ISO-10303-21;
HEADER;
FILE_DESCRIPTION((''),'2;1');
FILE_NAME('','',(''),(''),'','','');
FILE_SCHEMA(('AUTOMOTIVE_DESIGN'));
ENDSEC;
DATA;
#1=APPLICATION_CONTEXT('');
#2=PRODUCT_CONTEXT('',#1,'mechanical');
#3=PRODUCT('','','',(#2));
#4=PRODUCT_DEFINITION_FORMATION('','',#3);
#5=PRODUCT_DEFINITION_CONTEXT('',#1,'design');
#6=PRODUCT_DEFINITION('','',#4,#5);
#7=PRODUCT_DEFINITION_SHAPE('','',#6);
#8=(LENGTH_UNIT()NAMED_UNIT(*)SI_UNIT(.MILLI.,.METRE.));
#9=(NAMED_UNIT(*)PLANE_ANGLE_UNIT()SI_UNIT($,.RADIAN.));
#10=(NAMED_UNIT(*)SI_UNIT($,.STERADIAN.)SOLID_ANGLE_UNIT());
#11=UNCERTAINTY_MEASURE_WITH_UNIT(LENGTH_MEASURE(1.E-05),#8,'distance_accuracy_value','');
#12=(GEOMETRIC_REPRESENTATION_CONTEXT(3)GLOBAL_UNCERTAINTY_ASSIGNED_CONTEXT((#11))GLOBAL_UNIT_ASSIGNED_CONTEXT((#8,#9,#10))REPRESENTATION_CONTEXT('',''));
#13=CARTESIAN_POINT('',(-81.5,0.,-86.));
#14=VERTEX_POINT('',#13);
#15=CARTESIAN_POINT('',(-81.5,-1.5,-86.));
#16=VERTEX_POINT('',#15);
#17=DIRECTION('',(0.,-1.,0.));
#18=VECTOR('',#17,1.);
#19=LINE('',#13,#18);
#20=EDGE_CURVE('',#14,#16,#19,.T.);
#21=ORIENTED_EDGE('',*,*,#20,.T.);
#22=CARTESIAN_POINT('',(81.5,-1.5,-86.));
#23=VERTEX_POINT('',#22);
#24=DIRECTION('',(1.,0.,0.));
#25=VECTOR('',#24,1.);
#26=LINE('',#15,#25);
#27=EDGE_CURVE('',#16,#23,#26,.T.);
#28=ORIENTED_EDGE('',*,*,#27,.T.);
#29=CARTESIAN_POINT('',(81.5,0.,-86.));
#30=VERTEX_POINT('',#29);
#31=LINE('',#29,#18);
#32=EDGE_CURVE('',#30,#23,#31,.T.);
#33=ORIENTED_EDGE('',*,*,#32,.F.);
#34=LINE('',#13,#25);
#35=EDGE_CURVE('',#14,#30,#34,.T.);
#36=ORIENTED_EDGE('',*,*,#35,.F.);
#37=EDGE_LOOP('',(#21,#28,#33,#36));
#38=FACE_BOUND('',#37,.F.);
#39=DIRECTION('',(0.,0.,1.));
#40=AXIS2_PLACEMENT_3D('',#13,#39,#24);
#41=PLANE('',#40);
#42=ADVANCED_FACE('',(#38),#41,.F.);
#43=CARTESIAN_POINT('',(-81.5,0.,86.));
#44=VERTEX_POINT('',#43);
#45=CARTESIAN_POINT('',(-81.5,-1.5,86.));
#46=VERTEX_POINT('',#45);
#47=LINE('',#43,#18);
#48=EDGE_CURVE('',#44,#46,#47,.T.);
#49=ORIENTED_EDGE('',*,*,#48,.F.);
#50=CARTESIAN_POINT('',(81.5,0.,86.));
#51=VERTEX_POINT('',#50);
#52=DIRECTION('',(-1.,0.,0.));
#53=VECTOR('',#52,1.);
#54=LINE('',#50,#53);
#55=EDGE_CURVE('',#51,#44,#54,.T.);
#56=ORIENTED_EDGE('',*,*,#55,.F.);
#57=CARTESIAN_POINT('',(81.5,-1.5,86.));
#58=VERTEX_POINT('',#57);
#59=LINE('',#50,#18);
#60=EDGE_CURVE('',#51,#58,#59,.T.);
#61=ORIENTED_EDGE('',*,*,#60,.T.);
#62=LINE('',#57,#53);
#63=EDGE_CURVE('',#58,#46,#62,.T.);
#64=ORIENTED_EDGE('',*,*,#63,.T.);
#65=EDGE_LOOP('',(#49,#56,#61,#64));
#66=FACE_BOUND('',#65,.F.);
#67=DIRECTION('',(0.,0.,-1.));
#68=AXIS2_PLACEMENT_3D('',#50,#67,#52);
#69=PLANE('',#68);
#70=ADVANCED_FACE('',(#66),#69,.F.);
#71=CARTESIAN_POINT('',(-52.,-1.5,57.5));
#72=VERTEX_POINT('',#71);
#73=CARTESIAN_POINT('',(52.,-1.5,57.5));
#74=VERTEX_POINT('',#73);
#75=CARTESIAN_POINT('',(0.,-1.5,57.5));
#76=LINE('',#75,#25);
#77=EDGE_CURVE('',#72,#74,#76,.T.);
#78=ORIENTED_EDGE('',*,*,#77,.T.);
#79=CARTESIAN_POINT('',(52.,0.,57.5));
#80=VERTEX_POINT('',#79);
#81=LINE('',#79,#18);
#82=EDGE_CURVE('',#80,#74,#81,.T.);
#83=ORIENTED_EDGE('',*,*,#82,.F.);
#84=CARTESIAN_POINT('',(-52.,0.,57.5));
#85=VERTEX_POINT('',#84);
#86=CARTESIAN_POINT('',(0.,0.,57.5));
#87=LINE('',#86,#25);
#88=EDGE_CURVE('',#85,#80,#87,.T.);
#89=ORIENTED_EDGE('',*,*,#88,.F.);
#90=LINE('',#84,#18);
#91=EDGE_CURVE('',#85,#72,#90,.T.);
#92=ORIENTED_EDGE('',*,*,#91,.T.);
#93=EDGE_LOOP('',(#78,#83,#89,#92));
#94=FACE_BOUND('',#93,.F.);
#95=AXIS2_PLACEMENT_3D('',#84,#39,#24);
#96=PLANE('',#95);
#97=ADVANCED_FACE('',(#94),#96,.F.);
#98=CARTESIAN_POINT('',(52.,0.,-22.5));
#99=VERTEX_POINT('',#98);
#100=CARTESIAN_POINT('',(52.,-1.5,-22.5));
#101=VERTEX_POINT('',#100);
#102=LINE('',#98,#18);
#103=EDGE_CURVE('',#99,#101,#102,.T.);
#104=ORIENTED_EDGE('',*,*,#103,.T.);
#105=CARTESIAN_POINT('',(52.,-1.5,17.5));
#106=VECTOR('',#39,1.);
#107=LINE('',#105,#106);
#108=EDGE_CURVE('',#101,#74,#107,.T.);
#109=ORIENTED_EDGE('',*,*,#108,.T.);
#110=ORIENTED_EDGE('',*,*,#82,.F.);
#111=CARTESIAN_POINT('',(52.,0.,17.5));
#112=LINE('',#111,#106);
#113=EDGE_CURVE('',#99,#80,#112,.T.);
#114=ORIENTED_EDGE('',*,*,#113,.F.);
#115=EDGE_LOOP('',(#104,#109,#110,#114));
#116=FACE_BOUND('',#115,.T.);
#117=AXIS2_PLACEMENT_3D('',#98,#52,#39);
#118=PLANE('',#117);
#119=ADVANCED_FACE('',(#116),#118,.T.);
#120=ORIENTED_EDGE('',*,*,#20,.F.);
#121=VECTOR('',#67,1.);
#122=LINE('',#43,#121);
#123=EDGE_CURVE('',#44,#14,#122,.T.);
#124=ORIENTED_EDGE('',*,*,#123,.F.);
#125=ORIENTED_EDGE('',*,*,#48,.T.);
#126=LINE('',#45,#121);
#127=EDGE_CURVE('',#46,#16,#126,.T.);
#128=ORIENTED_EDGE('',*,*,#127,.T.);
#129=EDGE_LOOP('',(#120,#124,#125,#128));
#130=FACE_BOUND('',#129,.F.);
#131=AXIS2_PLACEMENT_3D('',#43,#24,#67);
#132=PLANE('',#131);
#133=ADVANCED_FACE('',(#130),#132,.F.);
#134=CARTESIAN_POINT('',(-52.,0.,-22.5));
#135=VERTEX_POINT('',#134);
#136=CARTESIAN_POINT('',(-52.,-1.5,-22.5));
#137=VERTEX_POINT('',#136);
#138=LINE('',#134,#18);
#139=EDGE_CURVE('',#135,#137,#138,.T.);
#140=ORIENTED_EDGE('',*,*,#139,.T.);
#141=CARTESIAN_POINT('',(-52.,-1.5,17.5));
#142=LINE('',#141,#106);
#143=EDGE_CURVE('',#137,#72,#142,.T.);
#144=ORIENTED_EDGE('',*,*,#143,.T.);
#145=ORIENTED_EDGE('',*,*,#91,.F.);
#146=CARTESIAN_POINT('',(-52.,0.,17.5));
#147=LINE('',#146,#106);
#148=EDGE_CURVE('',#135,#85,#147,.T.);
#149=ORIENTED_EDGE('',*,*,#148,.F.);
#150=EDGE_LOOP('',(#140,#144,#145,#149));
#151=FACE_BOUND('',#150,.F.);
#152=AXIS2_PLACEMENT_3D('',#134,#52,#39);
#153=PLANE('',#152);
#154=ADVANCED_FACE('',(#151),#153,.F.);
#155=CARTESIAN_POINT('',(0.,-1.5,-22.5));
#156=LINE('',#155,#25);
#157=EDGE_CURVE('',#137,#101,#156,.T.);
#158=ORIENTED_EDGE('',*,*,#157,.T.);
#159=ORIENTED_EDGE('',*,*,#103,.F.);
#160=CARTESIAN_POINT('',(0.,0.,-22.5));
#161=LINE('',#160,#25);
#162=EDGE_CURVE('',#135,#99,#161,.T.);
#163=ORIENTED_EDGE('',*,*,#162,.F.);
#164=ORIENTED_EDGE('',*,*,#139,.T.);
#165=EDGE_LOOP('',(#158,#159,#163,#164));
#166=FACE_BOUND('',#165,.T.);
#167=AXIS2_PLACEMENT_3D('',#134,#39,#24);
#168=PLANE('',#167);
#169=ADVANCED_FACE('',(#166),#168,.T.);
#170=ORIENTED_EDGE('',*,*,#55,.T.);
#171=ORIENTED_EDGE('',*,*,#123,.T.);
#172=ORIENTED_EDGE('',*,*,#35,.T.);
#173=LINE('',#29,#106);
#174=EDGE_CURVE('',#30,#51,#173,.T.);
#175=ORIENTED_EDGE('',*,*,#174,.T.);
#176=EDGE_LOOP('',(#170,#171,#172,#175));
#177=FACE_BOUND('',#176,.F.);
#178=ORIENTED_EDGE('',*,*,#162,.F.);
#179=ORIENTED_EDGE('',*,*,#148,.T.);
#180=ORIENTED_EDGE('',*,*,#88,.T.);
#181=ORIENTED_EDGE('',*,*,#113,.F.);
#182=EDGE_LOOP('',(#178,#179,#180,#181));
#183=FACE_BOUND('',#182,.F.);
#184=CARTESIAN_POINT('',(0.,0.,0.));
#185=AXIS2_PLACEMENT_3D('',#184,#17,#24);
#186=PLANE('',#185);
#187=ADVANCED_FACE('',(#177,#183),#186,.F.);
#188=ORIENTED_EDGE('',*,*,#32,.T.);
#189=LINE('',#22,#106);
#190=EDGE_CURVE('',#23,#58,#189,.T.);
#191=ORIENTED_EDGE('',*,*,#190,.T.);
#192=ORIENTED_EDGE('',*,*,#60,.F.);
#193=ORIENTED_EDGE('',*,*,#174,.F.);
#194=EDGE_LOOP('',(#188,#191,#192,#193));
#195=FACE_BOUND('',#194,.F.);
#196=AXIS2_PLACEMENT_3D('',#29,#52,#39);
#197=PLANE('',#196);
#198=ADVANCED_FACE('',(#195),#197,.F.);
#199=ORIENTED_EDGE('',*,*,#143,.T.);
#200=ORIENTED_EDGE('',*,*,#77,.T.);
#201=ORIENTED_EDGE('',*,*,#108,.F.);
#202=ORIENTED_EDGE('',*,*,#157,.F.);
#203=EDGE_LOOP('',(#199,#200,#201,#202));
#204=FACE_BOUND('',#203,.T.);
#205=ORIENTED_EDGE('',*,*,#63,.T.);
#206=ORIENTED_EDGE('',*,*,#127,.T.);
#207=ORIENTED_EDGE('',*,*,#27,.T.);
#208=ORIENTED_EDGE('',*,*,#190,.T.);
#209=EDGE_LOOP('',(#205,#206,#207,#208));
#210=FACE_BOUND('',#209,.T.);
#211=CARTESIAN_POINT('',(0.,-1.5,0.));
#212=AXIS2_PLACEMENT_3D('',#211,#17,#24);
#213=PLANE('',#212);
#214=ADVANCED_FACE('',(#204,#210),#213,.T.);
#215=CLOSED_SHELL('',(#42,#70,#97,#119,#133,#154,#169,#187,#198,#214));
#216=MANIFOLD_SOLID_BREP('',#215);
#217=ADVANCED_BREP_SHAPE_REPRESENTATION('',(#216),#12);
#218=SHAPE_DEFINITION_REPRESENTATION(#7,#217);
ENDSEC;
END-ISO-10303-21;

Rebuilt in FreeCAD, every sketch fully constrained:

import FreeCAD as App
import Part
import Sketcher

V = App.Vector

doc = App.newDocument("Part")
params = doc.addObject("Spreadsheet::Sheet", "Params")
for row, (alias, value) in enumerate([
    ("sketch1_width", "163 mm"),
    ("sketch1_width2", "104 mm"),
    ("sketch1_height", "172 mm"),
    ("sketch1_height2", "80 mm"),
    ("pad1_length", "1.5 mm"),
], start=1):
    params.set(f"A{row}", alias)
    params.set(f"B{row}", "=" + value)
    params.setAlias(f"B{row}", alias)

body = doc.addObject("PartDesign::Body", "Body")

# Sketch on XZ plane
sketch1 = body.newObject("Sketcher::SketchObject", "Sketch")
sketch1.AttachmentSupport = (doc.getObject("XZ_Plane"), [""])
sketch1.MapMode = "FlatFace"
sketch1.addGeometry([
    Part.LineSegment(V(81.5, -86, 0), V(81.5, 86, 0)),  # 0
    Part.LineSegment(V(81.5, 86, 0), V(-81.5, 86, 0)),  # 1
    Part.LineSegment(V(-81.5, 86, 0), V(-81.5, -86, 0)),  # 2
    Part.LineSegment(V(-81.5, -86, 0), V(81.5, -86, 0)),  # 3
    Part.LineSegment(V(52, -22.5, 0), V(-52, -22.5, 0)),  # 4
    Part.LineSegment(V(-52, -22.5, 0), V(-52, 57.5, 0)),  # 5
    Part.LineSegment(V(-52, 57.5, 0), V(52, 57.5, 0)),  # 6
    Part.LineSegment(V(52, 57.5, 0), V(52, -22.5, 0)),  # 7
], False)
sketch1.addConstraint([
    Sketcher.Constraint("Coincident", 0, 2, 1, 1),
    Sketcher.Constraint("Coincident", 1, 2, 2, 1),
    Sketcher.Constraint("Coincident", 2, 2, 3, 1),
    Sketcher.Constraint("Coincident", 3, 2, 0, 1),
    Sketcher.Constraint("Coincident", 4, 2, 5, 1),
    Sketcher.Constraint("Coincident", 5, 2, 6, 1),
    Sketcher.Constraint("Coincident", 6, 2, 7, 1),
    Sketcher.Constraint("Coincident", 7, 2, 4, 1),
    Sketcher.Constraint("Vertical", 0),
    Sketcher.Constraint("Horizontal", 1),
    Sketcher.Constraint("Vertical", 2),
    Sketcher.Constraint("Horizontal", 3),
    Sketcher.Constraint("Horizontal", 4),
    Sketcher.Constraint("Vertical", 5),
    Sketcher.Constraint("Horizontal", 6),
    Sketcher.Constraint("Vertical", 7),
    Sketcher.Constraint("Symmetric", 0, 2, 2, 2, -1, 1),
    Sketcher.Constraint("DistanceX", 1, 2, 1, 1, 163.0),
    Sketcher.Constraint("DistanceX", 4, 2, 4, 1, 104.0),
    Sketcher.Constraint("DistanceY", 0, 1, 0, 2, 172.0),
    Sketcher.Constraint("DistanceY", 5, 1, 5, 2, 80.0),
    Sketcher.Constraint("DistanceX", 4, 2, -1, 1, 52.0),
    Sketcher.Constraint("DistanceY", 4, 2, -1, 1, 22.5),
])
sketch1.setExpression("Constraints[17]", "Params.sketch1_width")
sketch1.setExpression("Constraints[18]", "Params.sketch1_width2")
sketch1.setExpression("Constraints[19]", "Params.sketch1_height")
sketch1.setExpression("Constraints[20]", "Params.sketch1_height2")
pad1 = body.newObject("PartDesign::Pad", "Pad")
pad1.Profile = sketch1
pad1.setExpression("Length", "Params.pad1_length")

doc.recompute()
